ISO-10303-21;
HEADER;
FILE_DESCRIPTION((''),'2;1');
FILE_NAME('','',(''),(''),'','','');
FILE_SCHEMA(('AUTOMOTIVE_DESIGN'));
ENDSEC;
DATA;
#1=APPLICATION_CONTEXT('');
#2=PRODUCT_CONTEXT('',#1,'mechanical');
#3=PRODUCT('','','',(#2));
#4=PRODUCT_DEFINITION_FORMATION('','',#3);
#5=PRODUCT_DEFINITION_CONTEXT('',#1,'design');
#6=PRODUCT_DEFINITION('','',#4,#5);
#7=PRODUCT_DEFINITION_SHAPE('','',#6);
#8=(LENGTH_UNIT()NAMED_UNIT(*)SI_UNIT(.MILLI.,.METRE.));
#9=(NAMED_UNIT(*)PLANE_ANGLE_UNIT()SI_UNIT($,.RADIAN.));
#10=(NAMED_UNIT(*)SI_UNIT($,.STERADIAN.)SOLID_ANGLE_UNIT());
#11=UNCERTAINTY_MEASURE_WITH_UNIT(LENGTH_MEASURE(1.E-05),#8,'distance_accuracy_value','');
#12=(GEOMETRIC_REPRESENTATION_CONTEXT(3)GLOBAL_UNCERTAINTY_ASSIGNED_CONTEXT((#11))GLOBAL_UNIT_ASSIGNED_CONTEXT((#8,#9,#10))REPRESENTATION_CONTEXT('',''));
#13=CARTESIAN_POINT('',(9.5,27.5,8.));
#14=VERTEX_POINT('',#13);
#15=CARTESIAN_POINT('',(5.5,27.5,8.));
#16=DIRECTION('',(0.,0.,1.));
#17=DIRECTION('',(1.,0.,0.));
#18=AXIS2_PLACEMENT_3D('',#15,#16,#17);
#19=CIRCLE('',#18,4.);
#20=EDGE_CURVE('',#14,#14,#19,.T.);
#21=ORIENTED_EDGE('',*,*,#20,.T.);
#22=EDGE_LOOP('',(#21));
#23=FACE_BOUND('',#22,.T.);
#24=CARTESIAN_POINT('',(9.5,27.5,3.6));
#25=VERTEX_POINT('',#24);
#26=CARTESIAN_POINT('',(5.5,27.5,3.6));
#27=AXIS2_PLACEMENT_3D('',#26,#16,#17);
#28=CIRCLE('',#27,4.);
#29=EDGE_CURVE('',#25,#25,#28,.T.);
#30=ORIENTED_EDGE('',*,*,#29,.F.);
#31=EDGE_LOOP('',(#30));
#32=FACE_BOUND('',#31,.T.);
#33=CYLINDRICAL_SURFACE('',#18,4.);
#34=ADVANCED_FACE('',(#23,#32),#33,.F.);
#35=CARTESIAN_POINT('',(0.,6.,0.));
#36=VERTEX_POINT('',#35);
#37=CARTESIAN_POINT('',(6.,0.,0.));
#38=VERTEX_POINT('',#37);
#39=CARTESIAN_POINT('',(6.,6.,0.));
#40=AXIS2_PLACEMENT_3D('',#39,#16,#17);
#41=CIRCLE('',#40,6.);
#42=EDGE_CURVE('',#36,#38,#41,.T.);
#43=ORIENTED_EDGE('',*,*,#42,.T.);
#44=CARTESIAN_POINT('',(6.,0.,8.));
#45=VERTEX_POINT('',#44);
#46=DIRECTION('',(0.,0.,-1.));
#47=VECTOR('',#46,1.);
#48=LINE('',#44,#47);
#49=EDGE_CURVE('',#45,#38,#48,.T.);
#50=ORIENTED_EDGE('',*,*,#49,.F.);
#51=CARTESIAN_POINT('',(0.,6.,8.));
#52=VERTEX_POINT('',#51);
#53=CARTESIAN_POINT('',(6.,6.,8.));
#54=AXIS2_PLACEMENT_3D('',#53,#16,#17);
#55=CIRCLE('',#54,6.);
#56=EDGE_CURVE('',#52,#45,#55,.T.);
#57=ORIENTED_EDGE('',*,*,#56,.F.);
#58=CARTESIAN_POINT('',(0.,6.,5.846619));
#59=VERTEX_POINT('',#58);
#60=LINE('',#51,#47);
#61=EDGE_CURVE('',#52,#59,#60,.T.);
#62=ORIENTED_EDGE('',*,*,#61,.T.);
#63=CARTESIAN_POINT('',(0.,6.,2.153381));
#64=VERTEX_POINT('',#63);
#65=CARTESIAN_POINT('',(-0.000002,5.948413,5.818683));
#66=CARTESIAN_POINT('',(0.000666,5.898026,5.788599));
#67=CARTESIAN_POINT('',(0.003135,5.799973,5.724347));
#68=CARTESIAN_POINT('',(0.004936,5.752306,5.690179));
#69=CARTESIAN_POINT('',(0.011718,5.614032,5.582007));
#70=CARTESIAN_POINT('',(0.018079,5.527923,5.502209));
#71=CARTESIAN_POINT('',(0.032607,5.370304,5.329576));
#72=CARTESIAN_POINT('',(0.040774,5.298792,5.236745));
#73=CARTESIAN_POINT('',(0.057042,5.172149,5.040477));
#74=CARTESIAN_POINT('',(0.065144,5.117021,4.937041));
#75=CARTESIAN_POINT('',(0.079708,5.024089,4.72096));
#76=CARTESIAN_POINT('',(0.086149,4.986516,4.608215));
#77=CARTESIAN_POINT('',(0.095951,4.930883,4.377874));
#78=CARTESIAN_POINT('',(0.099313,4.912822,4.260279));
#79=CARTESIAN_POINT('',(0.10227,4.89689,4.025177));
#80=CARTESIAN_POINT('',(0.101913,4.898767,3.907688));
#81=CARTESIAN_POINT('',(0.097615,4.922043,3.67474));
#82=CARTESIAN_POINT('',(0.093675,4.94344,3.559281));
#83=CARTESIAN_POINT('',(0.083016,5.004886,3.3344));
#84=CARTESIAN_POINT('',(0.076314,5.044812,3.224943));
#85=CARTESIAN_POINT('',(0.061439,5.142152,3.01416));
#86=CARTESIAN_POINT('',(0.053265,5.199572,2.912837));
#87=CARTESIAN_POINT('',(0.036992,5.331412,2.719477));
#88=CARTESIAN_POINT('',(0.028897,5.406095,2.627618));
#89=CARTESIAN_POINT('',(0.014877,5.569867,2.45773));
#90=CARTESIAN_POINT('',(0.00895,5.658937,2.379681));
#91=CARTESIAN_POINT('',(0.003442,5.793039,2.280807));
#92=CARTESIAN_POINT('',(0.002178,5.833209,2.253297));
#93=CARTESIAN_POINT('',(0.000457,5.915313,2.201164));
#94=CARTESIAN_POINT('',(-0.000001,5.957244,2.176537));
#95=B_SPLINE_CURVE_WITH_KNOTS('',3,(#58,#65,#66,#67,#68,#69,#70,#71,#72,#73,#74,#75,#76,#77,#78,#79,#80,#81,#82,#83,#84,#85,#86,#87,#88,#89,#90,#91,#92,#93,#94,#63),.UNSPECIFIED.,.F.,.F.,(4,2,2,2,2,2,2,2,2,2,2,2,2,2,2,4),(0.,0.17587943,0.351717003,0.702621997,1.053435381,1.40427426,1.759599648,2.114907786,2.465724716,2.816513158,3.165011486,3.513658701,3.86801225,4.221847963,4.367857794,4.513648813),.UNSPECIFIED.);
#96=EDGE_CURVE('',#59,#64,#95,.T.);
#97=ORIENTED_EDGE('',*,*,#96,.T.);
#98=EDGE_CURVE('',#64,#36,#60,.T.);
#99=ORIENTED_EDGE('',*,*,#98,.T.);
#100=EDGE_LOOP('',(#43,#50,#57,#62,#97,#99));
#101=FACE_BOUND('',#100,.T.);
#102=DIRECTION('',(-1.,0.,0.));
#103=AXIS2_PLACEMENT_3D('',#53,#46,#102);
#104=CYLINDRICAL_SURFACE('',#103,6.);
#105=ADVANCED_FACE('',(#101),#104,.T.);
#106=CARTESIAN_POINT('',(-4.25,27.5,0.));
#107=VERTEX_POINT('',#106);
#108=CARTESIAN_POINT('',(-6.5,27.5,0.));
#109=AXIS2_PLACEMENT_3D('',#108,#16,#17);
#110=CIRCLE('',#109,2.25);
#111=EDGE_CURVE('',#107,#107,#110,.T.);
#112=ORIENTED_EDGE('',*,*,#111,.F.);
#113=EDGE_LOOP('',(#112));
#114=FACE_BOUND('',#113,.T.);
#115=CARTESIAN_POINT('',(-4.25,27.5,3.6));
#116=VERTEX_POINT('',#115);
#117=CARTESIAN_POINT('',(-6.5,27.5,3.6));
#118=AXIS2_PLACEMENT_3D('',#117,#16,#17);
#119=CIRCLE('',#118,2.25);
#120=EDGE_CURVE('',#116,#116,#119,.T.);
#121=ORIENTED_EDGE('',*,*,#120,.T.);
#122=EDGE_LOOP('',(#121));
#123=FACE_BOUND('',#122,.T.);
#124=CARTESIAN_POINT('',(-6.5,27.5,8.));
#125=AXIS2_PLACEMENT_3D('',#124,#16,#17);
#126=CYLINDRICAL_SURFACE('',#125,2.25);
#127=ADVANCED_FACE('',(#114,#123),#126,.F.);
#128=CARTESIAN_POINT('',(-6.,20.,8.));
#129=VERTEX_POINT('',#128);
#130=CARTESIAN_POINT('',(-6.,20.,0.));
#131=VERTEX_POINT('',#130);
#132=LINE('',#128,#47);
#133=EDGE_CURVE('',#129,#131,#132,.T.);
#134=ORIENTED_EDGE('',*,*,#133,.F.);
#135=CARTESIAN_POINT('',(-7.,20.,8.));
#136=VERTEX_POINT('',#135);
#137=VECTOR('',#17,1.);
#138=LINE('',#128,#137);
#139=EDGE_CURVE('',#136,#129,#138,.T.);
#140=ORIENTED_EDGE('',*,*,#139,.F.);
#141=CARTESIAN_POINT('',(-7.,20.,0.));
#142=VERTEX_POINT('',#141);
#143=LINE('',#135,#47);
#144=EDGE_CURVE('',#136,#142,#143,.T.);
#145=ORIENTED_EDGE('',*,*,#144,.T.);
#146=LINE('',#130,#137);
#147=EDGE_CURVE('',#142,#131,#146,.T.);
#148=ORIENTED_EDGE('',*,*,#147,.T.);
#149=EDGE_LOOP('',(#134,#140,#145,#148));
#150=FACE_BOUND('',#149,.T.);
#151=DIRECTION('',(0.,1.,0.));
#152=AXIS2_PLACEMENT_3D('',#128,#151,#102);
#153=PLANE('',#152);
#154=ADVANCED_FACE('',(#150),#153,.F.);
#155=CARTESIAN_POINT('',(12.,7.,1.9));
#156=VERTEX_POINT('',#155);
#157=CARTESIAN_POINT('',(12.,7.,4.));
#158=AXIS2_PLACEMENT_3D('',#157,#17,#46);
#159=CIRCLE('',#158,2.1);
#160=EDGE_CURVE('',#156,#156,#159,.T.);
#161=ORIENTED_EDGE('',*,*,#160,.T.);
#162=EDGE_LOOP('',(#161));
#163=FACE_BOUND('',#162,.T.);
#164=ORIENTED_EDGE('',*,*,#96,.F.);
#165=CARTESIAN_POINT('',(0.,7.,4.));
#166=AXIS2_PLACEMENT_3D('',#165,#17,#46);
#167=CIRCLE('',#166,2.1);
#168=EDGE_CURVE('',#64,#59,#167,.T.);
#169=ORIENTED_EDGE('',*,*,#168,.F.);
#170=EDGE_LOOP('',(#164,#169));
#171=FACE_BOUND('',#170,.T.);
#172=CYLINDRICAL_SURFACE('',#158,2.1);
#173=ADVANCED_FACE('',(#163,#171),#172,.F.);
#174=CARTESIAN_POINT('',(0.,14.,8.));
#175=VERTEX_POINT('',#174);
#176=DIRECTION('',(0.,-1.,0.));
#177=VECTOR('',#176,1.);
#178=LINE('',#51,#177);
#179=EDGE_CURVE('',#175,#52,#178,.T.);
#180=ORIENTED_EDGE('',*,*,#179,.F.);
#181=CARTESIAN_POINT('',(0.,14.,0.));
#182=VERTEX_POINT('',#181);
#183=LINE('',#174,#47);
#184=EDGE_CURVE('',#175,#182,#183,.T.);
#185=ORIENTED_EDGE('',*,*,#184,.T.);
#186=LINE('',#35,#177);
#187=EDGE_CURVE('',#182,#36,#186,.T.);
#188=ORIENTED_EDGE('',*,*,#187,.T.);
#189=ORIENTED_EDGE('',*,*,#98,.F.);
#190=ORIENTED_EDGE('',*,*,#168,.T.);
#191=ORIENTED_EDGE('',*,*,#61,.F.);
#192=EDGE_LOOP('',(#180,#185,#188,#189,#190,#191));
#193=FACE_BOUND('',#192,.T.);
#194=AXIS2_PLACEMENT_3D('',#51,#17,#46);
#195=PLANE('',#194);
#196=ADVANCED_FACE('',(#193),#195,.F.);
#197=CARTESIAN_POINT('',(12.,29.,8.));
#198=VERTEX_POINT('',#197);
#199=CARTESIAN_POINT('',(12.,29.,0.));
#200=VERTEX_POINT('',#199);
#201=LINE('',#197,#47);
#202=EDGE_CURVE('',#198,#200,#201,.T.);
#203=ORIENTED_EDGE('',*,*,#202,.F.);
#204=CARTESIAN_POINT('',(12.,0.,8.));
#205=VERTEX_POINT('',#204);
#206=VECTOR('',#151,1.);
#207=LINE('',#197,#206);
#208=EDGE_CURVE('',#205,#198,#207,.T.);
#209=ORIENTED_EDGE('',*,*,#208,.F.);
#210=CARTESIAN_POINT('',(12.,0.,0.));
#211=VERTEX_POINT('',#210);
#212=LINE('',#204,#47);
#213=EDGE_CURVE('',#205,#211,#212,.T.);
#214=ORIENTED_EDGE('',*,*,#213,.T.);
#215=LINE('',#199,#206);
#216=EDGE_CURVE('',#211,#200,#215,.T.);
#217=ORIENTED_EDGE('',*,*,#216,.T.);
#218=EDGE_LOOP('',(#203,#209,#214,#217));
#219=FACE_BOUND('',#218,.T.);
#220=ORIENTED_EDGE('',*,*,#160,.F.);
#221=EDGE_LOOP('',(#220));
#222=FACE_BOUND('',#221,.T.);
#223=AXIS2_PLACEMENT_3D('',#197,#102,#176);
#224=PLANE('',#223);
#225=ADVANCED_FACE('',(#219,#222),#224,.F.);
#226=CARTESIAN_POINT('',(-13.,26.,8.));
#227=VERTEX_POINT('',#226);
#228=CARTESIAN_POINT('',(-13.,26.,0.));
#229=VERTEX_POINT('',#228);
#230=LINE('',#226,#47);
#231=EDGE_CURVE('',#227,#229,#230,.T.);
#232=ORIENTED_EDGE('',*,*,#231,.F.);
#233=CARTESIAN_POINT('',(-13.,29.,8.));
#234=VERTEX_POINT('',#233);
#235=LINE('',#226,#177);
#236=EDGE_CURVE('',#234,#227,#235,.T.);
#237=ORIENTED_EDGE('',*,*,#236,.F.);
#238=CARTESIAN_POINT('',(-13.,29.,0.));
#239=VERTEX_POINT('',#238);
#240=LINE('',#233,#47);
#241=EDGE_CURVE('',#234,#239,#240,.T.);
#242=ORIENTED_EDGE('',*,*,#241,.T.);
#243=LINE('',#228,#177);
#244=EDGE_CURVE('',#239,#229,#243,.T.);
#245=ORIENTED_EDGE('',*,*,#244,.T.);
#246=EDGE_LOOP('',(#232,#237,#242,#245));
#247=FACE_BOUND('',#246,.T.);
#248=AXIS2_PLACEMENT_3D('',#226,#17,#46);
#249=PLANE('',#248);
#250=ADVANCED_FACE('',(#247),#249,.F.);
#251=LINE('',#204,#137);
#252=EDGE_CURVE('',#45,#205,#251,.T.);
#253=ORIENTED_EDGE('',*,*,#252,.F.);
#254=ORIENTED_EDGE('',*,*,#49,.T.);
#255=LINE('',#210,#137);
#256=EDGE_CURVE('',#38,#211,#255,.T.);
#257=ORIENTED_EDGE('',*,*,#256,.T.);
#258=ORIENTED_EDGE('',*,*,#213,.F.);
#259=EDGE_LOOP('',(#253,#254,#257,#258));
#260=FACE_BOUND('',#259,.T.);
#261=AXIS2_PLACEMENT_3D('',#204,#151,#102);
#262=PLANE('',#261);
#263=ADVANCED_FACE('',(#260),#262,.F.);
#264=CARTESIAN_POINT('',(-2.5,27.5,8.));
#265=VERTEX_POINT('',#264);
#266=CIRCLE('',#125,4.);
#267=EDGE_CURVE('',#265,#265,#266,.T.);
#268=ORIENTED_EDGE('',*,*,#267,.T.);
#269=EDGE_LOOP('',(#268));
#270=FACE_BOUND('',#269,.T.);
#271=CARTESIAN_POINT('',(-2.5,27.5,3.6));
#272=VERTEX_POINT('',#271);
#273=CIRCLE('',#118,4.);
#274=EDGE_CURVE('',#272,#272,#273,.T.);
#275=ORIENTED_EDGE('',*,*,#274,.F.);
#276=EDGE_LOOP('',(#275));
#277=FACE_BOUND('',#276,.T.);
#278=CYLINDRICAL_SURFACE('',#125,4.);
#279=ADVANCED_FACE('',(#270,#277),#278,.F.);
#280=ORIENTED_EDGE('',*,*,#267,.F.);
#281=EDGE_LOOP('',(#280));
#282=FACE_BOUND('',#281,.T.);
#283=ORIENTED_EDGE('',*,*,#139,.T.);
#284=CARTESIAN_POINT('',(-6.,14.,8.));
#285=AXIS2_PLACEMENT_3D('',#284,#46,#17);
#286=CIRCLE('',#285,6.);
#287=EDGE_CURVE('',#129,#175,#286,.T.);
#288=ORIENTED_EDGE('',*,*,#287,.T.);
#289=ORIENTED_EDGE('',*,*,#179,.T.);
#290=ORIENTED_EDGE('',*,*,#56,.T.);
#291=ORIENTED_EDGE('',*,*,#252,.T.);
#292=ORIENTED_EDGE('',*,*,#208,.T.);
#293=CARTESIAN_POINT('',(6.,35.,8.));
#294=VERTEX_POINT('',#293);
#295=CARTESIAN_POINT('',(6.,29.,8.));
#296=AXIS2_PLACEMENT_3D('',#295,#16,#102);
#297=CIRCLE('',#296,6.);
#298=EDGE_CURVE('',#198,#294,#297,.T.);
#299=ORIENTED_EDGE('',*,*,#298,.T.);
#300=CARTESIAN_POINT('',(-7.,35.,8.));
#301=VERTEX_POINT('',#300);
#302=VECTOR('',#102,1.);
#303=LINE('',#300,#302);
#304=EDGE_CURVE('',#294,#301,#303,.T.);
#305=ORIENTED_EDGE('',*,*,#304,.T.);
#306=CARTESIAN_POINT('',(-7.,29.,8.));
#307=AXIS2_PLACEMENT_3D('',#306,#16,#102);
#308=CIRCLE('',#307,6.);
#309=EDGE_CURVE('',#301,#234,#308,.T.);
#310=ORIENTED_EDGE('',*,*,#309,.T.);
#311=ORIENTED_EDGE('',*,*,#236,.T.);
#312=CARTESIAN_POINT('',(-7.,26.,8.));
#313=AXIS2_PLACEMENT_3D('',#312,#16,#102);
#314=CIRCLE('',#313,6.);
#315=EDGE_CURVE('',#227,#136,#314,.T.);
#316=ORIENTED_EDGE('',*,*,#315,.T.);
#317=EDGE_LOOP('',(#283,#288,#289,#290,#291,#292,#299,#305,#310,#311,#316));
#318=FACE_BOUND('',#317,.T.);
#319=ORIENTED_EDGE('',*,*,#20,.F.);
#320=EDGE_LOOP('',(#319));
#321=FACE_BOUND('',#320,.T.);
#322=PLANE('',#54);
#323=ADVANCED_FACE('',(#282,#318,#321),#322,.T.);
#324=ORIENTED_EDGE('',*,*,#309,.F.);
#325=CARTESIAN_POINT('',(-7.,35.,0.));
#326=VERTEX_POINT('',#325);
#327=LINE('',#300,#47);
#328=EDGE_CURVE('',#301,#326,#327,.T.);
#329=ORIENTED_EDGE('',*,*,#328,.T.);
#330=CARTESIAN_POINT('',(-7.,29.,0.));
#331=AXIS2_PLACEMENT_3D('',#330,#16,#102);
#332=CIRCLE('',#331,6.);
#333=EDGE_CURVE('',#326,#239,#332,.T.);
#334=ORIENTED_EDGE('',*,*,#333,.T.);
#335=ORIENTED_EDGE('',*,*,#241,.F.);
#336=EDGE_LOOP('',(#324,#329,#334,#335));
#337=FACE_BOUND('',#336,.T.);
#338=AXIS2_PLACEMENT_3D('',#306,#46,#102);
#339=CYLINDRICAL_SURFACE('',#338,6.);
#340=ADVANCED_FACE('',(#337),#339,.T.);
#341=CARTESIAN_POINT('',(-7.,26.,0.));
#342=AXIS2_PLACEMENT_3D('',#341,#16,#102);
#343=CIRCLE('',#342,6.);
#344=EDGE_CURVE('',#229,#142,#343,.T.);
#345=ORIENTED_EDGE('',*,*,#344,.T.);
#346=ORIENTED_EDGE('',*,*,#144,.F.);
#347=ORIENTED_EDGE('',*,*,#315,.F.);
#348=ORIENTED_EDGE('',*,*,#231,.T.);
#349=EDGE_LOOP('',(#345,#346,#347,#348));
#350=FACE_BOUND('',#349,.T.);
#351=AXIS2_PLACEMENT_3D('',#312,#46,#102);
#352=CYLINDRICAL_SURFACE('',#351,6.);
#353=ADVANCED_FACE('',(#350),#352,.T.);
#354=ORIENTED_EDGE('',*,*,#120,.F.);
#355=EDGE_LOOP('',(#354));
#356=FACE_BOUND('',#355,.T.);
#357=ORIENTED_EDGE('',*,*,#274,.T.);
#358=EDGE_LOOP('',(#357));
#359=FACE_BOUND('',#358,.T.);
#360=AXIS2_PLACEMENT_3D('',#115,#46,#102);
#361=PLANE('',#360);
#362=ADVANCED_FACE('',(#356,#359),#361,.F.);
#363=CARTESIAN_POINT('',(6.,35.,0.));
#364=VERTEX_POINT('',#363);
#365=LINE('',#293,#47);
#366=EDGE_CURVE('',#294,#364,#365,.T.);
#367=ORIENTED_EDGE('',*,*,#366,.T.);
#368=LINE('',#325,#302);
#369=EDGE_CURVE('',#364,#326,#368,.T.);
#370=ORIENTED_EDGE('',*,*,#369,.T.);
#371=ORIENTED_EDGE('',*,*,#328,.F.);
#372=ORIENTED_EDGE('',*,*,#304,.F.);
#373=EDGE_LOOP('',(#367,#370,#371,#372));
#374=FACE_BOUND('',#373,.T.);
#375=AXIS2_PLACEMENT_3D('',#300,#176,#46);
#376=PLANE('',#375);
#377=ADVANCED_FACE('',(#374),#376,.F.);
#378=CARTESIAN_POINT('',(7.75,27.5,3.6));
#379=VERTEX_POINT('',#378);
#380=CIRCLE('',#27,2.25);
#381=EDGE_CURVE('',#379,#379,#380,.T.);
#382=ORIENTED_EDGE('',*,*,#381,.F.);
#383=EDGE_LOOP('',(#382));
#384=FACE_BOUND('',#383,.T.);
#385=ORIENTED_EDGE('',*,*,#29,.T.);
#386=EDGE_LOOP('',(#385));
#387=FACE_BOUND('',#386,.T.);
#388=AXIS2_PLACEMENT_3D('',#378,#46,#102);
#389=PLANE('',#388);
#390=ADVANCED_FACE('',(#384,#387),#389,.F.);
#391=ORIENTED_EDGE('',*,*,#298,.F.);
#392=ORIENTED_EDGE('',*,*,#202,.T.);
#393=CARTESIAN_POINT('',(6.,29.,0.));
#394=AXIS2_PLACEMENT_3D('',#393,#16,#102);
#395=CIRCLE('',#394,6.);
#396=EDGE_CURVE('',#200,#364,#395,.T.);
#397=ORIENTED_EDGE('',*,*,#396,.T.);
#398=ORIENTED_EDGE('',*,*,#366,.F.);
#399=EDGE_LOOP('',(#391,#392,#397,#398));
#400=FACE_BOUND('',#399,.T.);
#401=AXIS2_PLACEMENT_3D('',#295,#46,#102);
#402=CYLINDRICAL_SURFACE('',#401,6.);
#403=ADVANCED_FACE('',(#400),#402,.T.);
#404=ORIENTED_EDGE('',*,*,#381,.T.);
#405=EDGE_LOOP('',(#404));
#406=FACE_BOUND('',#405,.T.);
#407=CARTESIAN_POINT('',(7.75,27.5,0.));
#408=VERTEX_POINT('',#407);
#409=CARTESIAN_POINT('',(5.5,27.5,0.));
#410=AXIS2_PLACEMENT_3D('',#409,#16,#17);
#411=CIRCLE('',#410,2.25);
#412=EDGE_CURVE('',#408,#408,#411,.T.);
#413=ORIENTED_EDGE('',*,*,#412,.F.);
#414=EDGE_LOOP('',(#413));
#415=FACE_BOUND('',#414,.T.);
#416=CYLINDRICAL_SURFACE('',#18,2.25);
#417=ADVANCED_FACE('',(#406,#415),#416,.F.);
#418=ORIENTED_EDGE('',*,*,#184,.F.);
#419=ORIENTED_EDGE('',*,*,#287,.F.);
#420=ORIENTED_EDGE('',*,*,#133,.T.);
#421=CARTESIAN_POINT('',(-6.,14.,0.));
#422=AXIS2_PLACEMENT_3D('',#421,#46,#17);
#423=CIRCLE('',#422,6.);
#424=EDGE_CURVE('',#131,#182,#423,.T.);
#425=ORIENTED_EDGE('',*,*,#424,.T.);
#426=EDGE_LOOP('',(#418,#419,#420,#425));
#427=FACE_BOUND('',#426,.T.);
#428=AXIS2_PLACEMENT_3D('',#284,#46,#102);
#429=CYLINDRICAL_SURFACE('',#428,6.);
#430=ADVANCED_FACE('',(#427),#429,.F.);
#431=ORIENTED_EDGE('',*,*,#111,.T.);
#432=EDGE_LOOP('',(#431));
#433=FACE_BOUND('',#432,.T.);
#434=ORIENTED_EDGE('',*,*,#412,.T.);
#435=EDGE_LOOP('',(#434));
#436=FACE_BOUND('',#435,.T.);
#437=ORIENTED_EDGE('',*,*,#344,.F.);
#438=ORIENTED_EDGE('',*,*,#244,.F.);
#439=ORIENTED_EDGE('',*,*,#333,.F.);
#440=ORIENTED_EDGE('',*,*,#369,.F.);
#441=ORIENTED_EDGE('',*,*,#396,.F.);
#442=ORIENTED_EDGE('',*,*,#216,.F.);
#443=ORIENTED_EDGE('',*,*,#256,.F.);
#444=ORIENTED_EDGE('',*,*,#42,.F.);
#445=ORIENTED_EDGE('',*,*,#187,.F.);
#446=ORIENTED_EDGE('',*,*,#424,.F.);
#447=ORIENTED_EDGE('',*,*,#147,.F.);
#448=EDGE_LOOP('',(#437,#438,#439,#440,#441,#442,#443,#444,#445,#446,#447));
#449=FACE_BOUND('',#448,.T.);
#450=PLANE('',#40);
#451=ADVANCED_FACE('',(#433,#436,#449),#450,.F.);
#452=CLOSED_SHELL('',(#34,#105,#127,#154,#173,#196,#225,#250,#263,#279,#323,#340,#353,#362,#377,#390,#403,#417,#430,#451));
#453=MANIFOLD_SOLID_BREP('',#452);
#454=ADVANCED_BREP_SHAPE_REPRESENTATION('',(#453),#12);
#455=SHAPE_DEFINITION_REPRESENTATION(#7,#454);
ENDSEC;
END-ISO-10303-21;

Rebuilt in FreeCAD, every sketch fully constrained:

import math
import FreeCAD as App
import Part
import Sketcher

doc = App.newDocument("Part")
body = doc.addObject("PartDesign::Body", "Body")

sketch1 = body.newObject("Sketcher::SketchObject", "Sketch")
sketch1.AttachmentSupport = (doc.getObject("XY_Plane"), [""])
sketch1.MapMode = "FlatFace"
sketch1.addGeometry([
    Part.LineSegment(App.Vector(0, 14, 0), App.Vector(0, 6, 0)),
    Part.ArcOfCircle(Part.Circle(App.Vector(6, 6, 0), App.Vector(0, 0, 1), 6), math.radians(180), math.radians(270)),
    Part.LineSegment(App.Vector(6, 0, 0), App.Vector(12, 0, 0)),
    Part.LineSegment(App.Vector(12, 0, 0), App.Vector(12, 29, 0)),
    Part.ArcOfCircle(Part.Circle(App.Vector(6, 29, 0), App.Vector(0, 0, 1), 6), math.radians(0), math.radians(90)),
    Part.LineSegment(App.Vector(6, 35, 0), App.Vector(-7, 35, 0)),
    Part.ArcOfCircle(Part.Circle(App.Vector(-7, 29, 0), App.Vector(0, 0, 1), 6), math.radians(90), math.radians(180)),
    Part.LineSegment(App.Vector(-13, 29, 0), App.Vector(-13, 26, 0)),
    Part.ArcOfCircle(Part.Circle(App.Vector(-7, 26, 0), App.Vector(0, 0, 1), 6), math.radians(180), math.radians(270)),
    Part.LineSegment(App.Vector(-7, 20, 0), App.Vector(-6, 20, 0)),
    Part.ArcOfCircle(Part.Circle(App.Vector(-6, 14, 0), App.Vector(0, 0, 1), 6), math.radians(0), math.radians(90)),
], False)
sketch1.addConstraint([
    Sketcher.Constraint("Tangent", 0, 2, 1, 1),
    Sketcher.Constraint("Tangent", 1, 2, 2, 1),
    Sketcher.Constraint("Coincident", 2, 2, 3, 1),
    Sketcher.Constraint("Tangent", 3, 2, 4, 1),
    Sketcher.Constraint("Tangent", 4, 2, 5, 1),
    Sketcher.Constraint("Tangent", 5, 2, 6, 1),
    Sketcher.Constraint("Tangent", 6, 2, 7, 1),
    Sketcher.Constraint("Tangent", 7, 2, 8, 1),
    Sketcher.Constraint("Tangent", 8, 2, 9, 1),
    Sketcher.Constraint("Tangent", 9, 2, 10, 2),
    Sketcher.Constraint("Tangent", 10, 1, 0, 1),
    Sketcher.Constraint("Vertical", 0),
    Sketcher.Constraint("Horizontal", 2),
    Sketcher.Constraint("Vertical", 3),
    Sketcher.Constraint("Horizontal", 5),
    Sketcher.Constraint("Vertical", 7),
    Sketcher.Constraint("Horizontal", 9),
    Sketcher.Constraint("Equal", 1, 4),
    Sketcher.Constraint("Equal", 4, 6),
    Sketcher.Constraint("Equal", 6, 8),
    Sketcher.Constraint("Equal", 8, 10),
    Sketcher.Constraint("PointOnObject", 0, 2, -2),
    Sketcher.Constraint("PointOnObject", 1, 2, -1),
    Sketcher.Constraint("Vertical", 1, 3, 4, 3),
    Sketcher.Constraint("Radius", 1, 6.0),
    Sketcher.Constraint("DistanceX", 5, 2, 5, 1, 13.0),
    Sketcher.Constraint("DistanceY", 0, 2, 0, 1, 8.0),
    Sketcher.Constraint("DistanceY", 3, 1, 3, 2, 29.0),
])
pad1 = body.newObject("PartDesign::Pad", "Pad")
pad1.Profile = sketch1
pad1.Length = 8

sketch2 = body.newObject("Sketcher::SketchObject", "Sketch001")
sketch2.AttachmentSupport = (doc.getObject("XY_Plane"), [""])
sketch2.MapMode = "FlatFace"
sketch2.AttachmentOffset = App.Placement(App.Vector(0, 0, 8), App.Rotation())
sketch2.addGeometry([
    Part.Circle(App.Vector(-6.5, 27.5, 0), App.Vector(0, 0, 1), 2.2),
    Part.Circle(App.Vector(5.5, 27.5, 0), App.Vector(0, 0, 1), 2.2),
], False)
sketch2.addConstraint([
    Sketcher.Constraint("Equal", 0, 1),
    Sketcher.Constraint("Horizontal", 0, 3, 1, 3),
    Sketcher.Constraint("Diameter", 0, 4.5),
    Sketcher.Constraint("DistanceX", 0, 3, 1, 3, 12.0),
    Sketcher.Constraint("DistanceX", 0, 3, -1, 1, 6.5),
    Sketcher.Constraint("DistanceY", -1, 1, 0, 3, 27.5),
])
doc.recompute()
hole = body.newObject("PartDesign::Hole", "Hole")
hole.Profile = sketch2
hole.ThreadType = "None"
hole.Diameter = 4.5
hole.DepthType = "ThroughAll"
hole.HoleCutType = "Counterbore"
hole.HoleCutDiameter = 8
hole.HoleCutDepth = 4.4

sketch3 = body.newObject("Sketcher::SketchObject", "Sketch002")
sketch3.AttachmentSupport = (doc.getObject("YZ_Plane"), [""])
sketch3.MapMode = "FlatFace"
sketch3.AttachmentOffset = App.Placement(App.Vector(0, 0, 12), App.Rotation())
sketch3.addGeometry(Part.Circle(App.Vector(7, 4, 0), App.Vector(0, 0, 1), 2.1), False)
sketch3.addConstraint([
    Sketcher.Constraint("Diameter", 0, 4.2),
    Sketcher.Constraint("DistanceX", -1, 1, 0, 3, 7.0),
    Sketcher.Constraint("DistanceY", -1, 1, 0, 3, 4.0),
])
doc.recompute()
hole2 = body.newObject("PartDesign::Hole", "Hole001")
hole2.Profile = sketch3
hole2.ThreadType = "None"
hole2.Diameter = 4.2
hole2.DepthType = "ThroughAll"

doc.recompute()
